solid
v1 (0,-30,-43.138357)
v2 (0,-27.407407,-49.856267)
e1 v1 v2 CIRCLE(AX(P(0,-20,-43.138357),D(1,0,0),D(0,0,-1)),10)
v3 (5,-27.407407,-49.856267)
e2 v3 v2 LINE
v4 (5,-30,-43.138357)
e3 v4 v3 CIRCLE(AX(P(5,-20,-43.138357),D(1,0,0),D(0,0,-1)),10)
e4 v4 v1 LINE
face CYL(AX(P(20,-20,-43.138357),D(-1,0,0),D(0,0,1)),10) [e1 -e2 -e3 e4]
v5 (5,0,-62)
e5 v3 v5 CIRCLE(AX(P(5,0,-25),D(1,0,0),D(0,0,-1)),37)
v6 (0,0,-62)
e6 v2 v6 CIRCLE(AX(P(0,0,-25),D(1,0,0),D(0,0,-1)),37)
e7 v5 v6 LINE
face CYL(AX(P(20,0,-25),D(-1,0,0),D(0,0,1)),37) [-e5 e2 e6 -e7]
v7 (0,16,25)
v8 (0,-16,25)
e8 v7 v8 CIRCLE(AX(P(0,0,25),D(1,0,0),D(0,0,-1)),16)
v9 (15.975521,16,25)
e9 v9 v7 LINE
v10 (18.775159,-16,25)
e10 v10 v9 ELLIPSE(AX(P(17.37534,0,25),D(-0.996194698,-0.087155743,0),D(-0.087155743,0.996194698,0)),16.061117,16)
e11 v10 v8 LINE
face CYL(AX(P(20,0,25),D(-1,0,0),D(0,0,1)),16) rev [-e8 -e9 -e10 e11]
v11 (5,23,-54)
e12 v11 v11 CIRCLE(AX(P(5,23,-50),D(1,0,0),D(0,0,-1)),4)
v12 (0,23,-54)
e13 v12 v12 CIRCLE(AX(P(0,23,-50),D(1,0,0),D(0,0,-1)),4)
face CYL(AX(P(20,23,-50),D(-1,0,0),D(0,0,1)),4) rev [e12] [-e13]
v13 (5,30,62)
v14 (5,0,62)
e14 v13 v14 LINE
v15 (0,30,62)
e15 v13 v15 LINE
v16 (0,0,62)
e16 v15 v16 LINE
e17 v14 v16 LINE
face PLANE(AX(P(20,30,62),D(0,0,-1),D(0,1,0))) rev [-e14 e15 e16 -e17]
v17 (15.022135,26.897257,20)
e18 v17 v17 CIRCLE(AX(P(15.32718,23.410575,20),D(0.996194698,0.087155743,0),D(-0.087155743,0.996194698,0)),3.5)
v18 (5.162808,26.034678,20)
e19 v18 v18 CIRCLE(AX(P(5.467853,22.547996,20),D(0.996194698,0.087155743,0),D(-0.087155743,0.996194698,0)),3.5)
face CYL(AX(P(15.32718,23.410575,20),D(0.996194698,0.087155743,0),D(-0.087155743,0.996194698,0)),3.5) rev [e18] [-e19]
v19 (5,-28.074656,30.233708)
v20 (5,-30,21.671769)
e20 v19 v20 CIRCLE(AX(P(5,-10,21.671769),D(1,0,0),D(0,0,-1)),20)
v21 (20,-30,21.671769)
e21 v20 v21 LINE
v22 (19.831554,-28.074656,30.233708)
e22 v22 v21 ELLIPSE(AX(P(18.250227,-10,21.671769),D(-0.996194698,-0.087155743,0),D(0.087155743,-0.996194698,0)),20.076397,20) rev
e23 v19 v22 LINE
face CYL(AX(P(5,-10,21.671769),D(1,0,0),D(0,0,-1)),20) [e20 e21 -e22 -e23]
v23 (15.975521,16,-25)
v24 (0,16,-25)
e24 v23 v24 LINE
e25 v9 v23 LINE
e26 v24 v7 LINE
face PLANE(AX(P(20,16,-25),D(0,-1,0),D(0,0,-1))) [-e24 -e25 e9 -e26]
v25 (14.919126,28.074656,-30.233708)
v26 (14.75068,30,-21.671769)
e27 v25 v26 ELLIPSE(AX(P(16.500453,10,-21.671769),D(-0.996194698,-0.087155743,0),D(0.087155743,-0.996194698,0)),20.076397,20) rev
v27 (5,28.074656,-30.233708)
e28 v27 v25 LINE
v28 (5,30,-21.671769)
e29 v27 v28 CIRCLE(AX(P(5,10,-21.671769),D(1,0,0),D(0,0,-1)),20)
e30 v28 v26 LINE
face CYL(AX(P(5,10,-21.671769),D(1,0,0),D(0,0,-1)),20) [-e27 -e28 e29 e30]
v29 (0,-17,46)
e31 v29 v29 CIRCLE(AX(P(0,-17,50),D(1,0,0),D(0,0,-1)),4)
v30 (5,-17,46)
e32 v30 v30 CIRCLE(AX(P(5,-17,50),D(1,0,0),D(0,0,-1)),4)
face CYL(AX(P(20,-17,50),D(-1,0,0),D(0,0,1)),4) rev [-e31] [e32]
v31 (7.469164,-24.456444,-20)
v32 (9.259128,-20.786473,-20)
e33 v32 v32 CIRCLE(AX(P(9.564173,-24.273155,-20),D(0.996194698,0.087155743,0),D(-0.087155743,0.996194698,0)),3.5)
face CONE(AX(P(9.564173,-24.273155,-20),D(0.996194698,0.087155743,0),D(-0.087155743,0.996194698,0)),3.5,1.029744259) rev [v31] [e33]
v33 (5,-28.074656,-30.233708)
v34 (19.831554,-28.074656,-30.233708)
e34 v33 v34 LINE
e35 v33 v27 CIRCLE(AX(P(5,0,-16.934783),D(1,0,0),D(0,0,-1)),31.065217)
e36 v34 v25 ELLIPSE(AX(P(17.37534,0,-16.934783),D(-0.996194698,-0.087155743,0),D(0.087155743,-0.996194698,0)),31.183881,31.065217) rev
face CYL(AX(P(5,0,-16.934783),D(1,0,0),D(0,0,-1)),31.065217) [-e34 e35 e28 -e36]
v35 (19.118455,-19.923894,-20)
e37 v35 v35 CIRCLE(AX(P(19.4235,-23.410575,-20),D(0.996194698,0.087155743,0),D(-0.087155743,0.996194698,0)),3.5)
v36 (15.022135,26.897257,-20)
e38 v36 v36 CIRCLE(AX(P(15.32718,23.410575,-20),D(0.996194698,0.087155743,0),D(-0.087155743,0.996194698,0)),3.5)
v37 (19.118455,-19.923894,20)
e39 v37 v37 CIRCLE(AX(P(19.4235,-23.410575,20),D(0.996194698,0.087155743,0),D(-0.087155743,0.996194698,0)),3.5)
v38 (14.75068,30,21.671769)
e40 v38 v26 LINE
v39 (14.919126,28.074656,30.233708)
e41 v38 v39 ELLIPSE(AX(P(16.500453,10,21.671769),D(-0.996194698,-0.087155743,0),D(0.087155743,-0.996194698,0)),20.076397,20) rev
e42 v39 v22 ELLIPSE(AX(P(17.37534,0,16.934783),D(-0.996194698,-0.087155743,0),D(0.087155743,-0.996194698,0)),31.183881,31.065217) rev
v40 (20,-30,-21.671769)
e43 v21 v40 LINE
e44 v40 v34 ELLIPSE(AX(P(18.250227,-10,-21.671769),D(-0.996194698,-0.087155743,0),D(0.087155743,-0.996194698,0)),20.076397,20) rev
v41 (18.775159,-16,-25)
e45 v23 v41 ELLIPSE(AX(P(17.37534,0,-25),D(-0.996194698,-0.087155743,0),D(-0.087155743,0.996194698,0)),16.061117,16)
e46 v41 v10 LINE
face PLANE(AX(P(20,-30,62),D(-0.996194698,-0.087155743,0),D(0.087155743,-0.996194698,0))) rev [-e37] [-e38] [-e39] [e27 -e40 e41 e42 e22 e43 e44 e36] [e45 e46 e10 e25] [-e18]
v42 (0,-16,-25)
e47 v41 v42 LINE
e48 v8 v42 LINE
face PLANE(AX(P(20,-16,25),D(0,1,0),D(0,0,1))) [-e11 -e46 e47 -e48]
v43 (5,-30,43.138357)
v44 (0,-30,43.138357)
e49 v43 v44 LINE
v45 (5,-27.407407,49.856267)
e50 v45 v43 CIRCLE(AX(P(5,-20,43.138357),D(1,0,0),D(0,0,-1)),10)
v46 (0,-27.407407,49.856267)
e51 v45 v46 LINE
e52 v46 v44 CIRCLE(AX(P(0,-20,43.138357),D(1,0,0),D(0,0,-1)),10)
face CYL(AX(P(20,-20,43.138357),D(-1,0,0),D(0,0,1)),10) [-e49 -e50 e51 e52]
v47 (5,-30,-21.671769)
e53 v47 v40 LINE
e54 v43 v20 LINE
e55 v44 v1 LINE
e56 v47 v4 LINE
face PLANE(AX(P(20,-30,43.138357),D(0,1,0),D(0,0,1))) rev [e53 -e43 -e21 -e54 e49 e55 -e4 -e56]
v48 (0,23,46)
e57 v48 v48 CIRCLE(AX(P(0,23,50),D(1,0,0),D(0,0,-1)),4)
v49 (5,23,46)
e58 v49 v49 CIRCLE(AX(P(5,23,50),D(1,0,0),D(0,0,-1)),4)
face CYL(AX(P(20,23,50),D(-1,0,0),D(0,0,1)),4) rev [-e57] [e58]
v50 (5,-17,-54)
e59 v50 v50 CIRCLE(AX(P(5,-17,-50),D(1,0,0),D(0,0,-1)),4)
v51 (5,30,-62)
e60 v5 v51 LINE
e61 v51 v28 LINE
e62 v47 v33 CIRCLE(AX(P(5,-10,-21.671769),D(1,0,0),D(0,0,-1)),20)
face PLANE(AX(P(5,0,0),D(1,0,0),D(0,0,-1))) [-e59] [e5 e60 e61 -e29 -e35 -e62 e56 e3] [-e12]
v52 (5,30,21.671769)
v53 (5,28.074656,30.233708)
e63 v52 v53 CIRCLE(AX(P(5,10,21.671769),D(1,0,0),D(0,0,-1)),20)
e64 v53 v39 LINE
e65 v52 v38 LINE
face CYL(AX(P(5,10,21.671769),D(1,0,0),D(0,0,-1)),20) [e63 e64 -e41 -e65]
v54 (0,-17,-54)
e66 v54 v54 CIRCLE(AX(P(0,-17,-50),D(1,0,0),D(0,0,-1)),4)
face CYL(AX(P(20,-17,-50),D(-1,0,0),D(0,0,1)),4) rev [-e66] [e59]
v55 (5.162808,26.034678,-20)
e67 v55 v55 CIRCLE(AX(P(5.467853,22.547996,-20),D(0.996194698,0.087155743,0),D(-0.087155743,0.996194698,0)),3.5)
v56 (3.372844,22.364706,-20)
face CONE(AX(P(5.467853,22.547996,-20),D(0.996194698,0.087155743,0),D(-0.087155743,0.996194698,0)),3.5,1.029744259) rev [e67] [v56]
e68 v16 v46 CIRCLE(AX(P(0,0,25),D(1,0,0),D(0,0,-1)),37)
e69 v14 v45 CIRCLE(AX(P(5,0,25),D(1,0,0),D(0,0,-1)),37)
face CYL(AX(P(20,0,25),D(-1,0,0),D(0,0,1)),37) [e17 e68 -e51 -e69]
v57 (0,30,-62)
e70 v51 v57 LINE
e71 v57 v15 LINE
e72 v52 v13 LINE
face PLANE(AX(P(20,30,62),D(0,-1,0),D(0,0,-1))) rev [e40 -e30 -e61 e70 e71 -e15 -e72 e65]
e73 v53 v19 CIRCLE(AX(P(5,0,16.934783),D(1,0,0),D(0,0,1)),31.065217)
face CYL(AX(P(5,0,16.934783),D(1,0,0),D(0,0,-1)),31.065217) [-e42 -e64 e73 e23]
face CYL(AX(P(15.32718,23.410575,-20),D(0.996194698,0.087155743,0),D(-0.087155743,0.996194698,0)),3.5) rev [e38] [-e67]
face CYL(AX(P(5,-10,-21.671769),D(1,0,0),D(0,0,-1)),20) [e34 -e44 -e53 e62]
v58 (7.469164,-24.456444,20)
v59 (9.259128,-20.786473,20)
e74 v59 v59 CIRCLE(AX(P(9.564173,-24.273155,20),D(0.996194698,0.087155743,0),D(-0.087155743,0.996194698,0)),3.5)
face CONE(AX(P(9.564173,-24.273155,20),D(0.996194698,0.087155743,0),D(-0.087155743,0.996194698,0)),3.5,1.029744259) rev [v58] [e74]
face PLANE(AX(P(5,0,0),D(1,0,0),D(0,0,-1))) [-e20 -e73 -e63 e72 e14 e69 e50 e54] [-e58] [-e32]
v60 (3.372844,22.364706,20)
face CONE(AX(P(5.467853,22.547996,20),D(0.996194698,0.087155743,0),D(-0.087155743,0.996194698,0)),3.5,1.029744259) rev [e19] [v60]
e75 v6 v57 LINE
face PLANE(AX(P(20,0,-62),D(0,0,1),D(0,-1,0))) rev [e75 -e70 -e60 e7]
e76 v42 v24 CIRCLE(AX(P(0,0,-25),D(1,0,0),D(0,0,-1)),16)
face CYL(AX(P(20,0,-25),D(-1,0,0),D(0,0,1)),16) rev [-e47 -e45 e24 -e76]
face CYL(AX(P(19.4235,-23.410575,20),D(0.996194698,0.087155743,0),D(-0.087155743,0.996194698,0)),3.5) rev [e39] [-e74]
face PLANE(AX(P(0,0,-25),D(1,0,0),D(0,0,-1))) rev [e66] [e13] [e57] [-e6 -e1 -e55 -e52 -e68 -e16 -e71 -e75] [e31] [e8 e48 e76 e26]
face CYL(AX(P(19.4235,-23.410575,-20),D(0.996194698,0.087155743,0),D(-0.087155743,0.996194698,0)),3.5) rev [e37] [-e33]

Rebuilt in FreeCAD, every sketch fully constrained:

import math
import FreeCAD as App
import Part
import Sketcher

V = App.Vector
Q = App.Units.Quantity


def add_polygon(sketch, points):
    """Adds a closed chain of lines whose ends are joined by coincident constraints."""
    first, n = sketch.GeometryCount, len(points)
    for a, b in zip(points, points[1:] + points[:1]):
        sketch.addGeometry(Part.LineSegment(App.Vector(*a, 0), App.Vector(*b, 0)), False)
    for i in range(n):
        sketch.addConstraint(Sketcher.Constraint("Coincident", first + i, 2, first + (i + 1) % n, 1))

doc = App.newDocument("Part")
body = doc.addObject("PartDesign::Body", "Body")

sketch1 = body.newObject("Sketcher::SketchObject", "Sketch")
sketch1.AttachmentSupport = (doc.getObject("YZ_Plane"), [""])
sketch1.MapMode = "FlatFace"
sketch1.addGeometry([
    Part.LineSegment(V(-30, 43.1, 0), V(-30, -43.1, 0)),
    Part.ArcOfCircle(Part.Circle(V(-20, -43.1, 0), V(0, 0, 1), 10), math.radians(-180), math.radians(-138)),
    Part.ArcOfCircle(Part.Circle(V(0, -25, 0), V(0, 0, 1), 37), math.radians(-138), math.radians(-90)),
    Part.LineSegment(V(0, -62, 0), V(30, -62, 0)),
    Part.LineSegment(V(30, -62, 0), V(30, 62, 0)),
    Part.LineSegment(V(30, 62, 0), V(0, 62, 0)),
    Part.ArcOfCircle(Part.Circle(V(0, 25, 0), V(0, 0, 1), 37), math.radians(90), math.radians(138)),
    Part.ArcOfCircle(Part.Circle(V(-20, 43.1, 0), V(0, 0, 1), 10), math.radians(138), math.radians(180)),
    Part.Circle(V(-17, 50, 0), V(0, 0, 1), 4),
    Part.LineSegment(V(-16, -25, 0), V(-16, 25, 0)),
    Part.ArcOfCircle(Part.Circle(V(0, 25, 0), V(0, 0, 1), 16), math.radians(0), math.radians(180)),
    Part.LineSegment(V(16, 25, 0), V(16, -25, 0)),
    Part.ArcOfCircle(Part.Circle(V(0, -25, 0), V(0, 0, 1), 16), math.radians(180), math.radians(360)),
    Part.Circle(V(-17, -50, 0), V(0, 0, 1), 4),
    Part.Circle(V(23, 50, 0), V(0, 0, 1), 4),
    Part.Circle(V(23, -50, 0), V(0, 0, 1), 4),
], False)
sketch1.addConstraint([
    Sketcher.Constraint("Tangent", 0, 2, 1, 1),
    Sketcher.Constraint("Tangent", 1, 2, 2, 1),
    Sketcher.Constraint("Tangent", 2, 2, 3, 1),
    Sketcher.Constraint("Coincident", 3, 2, 4, 1),
    Sketcher.Constraint("Coincident", 4, 2, 5, 1),
    Sketcher.Constraint("Tangent", 5, 2, 6, 1),
    Sketcher.Constraint("Tangent", 6, 2, 7, 1),
    Sketcher.Constraint("Tangent", 7, 2, 0, 1),
    Sketcher.Constraint("Tangent", 9, 2, 10, 2),
    Sketcher.Constraint("Tangent", 10, 1, 11, 1),
    Sketcher.Constraint("Tangent", 11, 2, 12, 2),
    Sketcher.Constraint("Tangent", 12, 1, 9, 1),
    Sketcher.Constraint("Vertical", 0),
    Sketcher.Constraint("Horizontal", 3),
    Sketcher.Constraint("Vertical", 4),
    Sketcher.Constraint("Horizontal", 5),
    Sketcher.Constraint("Vertical", 9),
    Sketcher.Constraint("Vertical", 11),
    Sketcher.Constraint("Coincident", 10, 3, 6, 3),
    Sketcher.Constraint("Coincident", 12, 3, 2, 3),
    Sketcher.Constraint("Equal", 2, 6),
    Sketcher.Constraint("Equal", 1, 7),
    Sketcher.Constraint("Equal", 8, 13),
    Sketcher.Constraint("Equal", 13, 14),
    Sketcher.Constraint("Equal", 14, 15),
    Sketcher.Constraint("Symmetric", 2, 3, 6, 3, -1, 1),
    Sketcher.Constraint("Symmetric", 8, 3, 13, 3, -1),
    Sketcher.Constraint("Symmetric", 14, 3, 15, 3, -1),
    Sketcher.Constraint("Horizontal", 8, 3, 14, 3),
    Sketcher.Constraint("Diameter", 8, 8.0),
    Sketcher.Constraint("Radius", 1, 10.0),
    Sketcher.Constraint("Radius", 2, 37.0),
    Sketcher.Constraint("Radius", 10, 16.0),
    Sketcher.Constraint("DistanceX", 3, 1, 3, 2, 30.0),
    Sketcher.Constraint("DistanceY", 4, 1, 4, 2, 124.0),
    Sketcher.Constraint("DistanceX", 1, 3, -1, 1, 20.0),
    Sketcher.Constraint("DistanceX", 8, 3, -1, 1, 17.0),
    Sketcher.Constraint("DistanceY", -1, 1, 8, 3, 50.0),
    Sketcher.Constraint("DistanceX", -1, 1, 14, 3, 23.0),
])
pad1 = body.newObject("PartDesign::Pad", "Pad")
pad1.Profile = sketch1
pad1.Length = 20

sketch2 = body.newObject("Sketcher::SketchObject", "Sketch001")
sketch2.AttachmentSupport = (doc.getObject("YZ_Plane"), [""])
sketch2.MapMode = "FlatFace"
sketch2.AttachmentOffset = App.Placement(V(0, 0, 20), App.Rotation())
add_polygon(sketch2, [(45, 77), (-45, 77), (-45, -77), (45, -77)])
sketch2.addGeometry(Part.LineSegment(V(30, 22, 0), V(30, -22, 0)), False)
sketch2.addGeometry(Part.ArcOfCircle(Part.Circle(V(10, -22, 0), V(0, 0, 1), 20), math.radians(-25), math.radians(0)), False)
sketch2.addGeometry(Part.ArcOfCircle(Part.Circle(V(0, -17, 0), V(0, 0, 1), 31), math.radians(-155), math.radians(-25)), False)
sketch2.addGeometry(Part.ArcOfCircle(Part.Circle(V(-10, -22, 0), V(0, 0, 1), 20), math.radians(-180), math.radians(-155)), False)
sketch2.addGeometry(Part.LineSegment(V(-30, -22, 0), V(-30, 22, 0)), False)
sketch2.addGeometry(Part.ArcOfCircle(Part.Circle(V(-10, 22, 0), V(0, 0, 1), 20), math.radians(155), math.radians(180)), False)
sketch2.addGeometry(Part.ArcOfCircle(Part.Circle(V(0, 17, 0), V(0, 0, 1), 31), math.radians(25), math.radians(155)), False)
sketch2.addGeometry(Part.ArcOfCircle(Part.Circle(V(10, 22, 0), V(0, 0, 1), 20), math.radians(0), math.radians(25)), False)
sketch2.addGeometry(Part.LineSegment(V(-16, 25, 0), V(-16, -25, 0)), False)
sketch2.addGeometry(Part.ArcOfCircle(Part.Circle(V(0, -25, 0), V(0, 0, 1), 16), math.radians(180), math.radians(360)), False)
sketch2.addGeometry(Part.LineSegment(V(16, -25, 0), V(16, 25, 0)), False)
sketch2.addGeometry(Part.ArcOfCircle(Part.Circle(V(0, 25, 0), V(0, 0, 1), 16), math.radians(0), math.radians(180)), False)
sketch2.addConstraint([
    Sketcher.Constraint("Tangent", 4, 2, 5, 2),
    Sketcher.Constraint("Tangent", 5, 1, 6, 2),
    Sketcher.Constraint("Tangent", 6, 1, 7, 2),
    Sketcher.Constraint("Tangent", 7, 1, 8, 1),
    Sketcher.Constraint("Tangent", 8, 2, 9, 2),
    Sketcher.Constraint("Tangent", 9, 1, 10, 2),
    Sketcher.Constraint("Tangent", 10, 1, 11, 2),
    Sketcher.Constraint("Tangent", 11, 1, 4, 1),
    Sketcher.Constraint("Tangent", 12, 2, 13, 1),
    Sketcher.Constraint("Tangent", 13, 2, 14, 1),
    Sketcher.Constraint("Tangent", 14, 2, 15, 1),
    Sketcher.Constraint("Tangent", 15, 2, 12, 1),
    Sketcher.Constraint("Horizontal", 0),
    Sketcher.Constraint("Vertical", 1),
    Sketcher.Constraint("Horizontal", 2),
    Sketcher.Constraint("Vertical", 3),
    Sketcher.Constraint("Vertical", 4),
    Sketcher.Constraint("Vertical", 8),
    Sketcher.Constraint("Vertical", 12),
    Sketcher.Constraint("Vertical", 14),
    Sketcher.Constraint("Equal", 5, 7),
    Sketcher.Constraint("Equal", 7, 9),
    Sketcher.Constraint("Equal", 6, 10),
    Sketcher.Constraint("Equal", 9, 11),
    Sketcher.Constraint("Symmetric", 5, 3, 9, 3, -1, 1),
    Sketcher.Constraint("Symmetric", 13, 3, 15, 3, -1, 1),
    Sketcher.Constraint("Symmetric", 0, 2, 2, 2, -1, 1),
    Sketcher.Constraint("Symmetric", 6, 3, 10, 3, -1),
    Sketcher.Constraint("Radius", 5, 20.0),
    Sketcher.Constraint("Radius", 13, 16.0),
    Sketcher.Constraint("DistanceY", 12, 2, 12, 1, 50.0),
    Sketcher.Constraint("DistanceX", -1, 1, 5, 3, 10.0),
    Sketcher.Constraint("DistanceX", 0, 2, 0, 1, 89.84),
    Sketcher.Constraint("DistanceY", 1, 2, 1, 1, 153.84),
    Sketcher.Constraint("Radius", 6, 31.065217),
    Sketcher.Constraint("DistanceY", 4, 2, 4, 1, 43.343537),
])
pocket1 = body.newObject("PartDesign::Pocket", "Pocket")
pocket1.Profile = sketch2
pocket1.Length = 15

sketch3 = body.newObject("Sketcher::SketchObject", "Sketch002")
sketch3.AttachmentSupport = (doc.getObject("XY_Plane"), [""])
sketch3.MapMode = "FlatFace"
sketch3.AttachmentOffset = App.Placement(V(0, 0, -62), App.Rotation())
add_polygon(sketch3, [(20, 30), (20, -30), (15, 30)])
sketch3.addConstraint([
    Sketcher.Constraint("Vertical", 0),
    Sketcher.Constraint("Horizontal", 2),
    Sketcher.Constraint("DistanceY", 0, 2, 0, 1, 60.0),
    Sketcher.Constraint("Angle", 1, Q("95 deg")),
    Sketcher.Constraint("DistanceX", -1, 1, 0, 2, 20.0),
    Sketcher.Constraint("DistanceY", 0, 2, -1, 1, 30.0),
])
pocket2 = body.newObject("PartDesign::Pocket", "Pocket001")
pocket2.Profile = sketch3
pocket2.Type = "ThroughAll"
pocket2.Midplane = True

sketch4 = body.newObject("Sketcher::SketchObject", "Sketch003")
sketch4.Placement = App.Placement(V(17.243355, 1.508598, 0), App.Rotation(V(-0.087155743, 0.996194698, 0), V(0, 0, 1), V(0.996194698, 0.087155743, 0), "ZXY"))
sketch4.addGeometry([
    Part.Circle(V(22, 20, 0), V(0, 0, 1), 3.5),
    Part.Circle(V(-25, -20, 0), V(0, 0, 1), 3.5),
    Part.Circle(V(-25, 20, 0), V(0, 0, 1), 3.5),
], False)
sketch4.addConstraint([
    Sketcher.Constraint("Equal", 0, 1),
    Sketcher.Constraint("Equal", 1, 2),
    Sketcher.Constraint("Symmetric", 1, 3, 2, 3, -1),
    Sketcher.Constraint("Horizontal", 0, 3, 2, 3),
    Sketcher.Constraint("Diameter", 0, 7.0),
    Sketcher.Constraint("DistanceY", -1, 1, 0, 3, 20.0),
    Sketcher.Constraint("DistanceX", 1, 3, 0, 3, 47.0),
    Sketcher.Constraint("DistanceX", -1, 1, 0, 3, 21.985639),
])
doc.recompute()
hole = body.newObject("PartDesign::Hole", "Hole")
hole.Profile = sketch4
hole.ThreadType = "None"
hole.Diameter = 7
hole.DepthType = "Dimension"
hole.Depth = 9.896988
hole.DrillPoint = "Angled"
hole.DrillPointAngle = 118

sketch5 = body.newObject("Sketcher::SketchObject", "Sketch004")
sketch5.Placement = App.Placement(V(17.24336, 1.508602, 0), App.Rotation(V(-0.087155972, 0.996194678, 0), V(0, 0, 1), V(0.996194678, 0.087155972, 0), "ZXY"))
sketch5.addGeometry(Part.Circle(V(22, -20, 0), V(0, 0, 1), 3.5), False)
sketch5.addConstraint([
    Sketcher.Constraint("Diameter", 0, 7.0),
    Sketcher.Constraint("DistanceY", 0, 3, -1, 1, 20.0),
    Sketcher.Constraint("DistanceX", -1, 1, 0, 3, 21.985635),
])
doc.recompute()
hole2 = body.newObject("PartDesign::Hole", "Hole001")
hole2.Profile = sketch5
hole2.ThreadType = "None"
hole2.Diameter = 7
hole2.DepthType = "Dimension"
hole2.Depth = 9.896988
hole2.DrillPoint = "Angled"
hole2.DrillPointAngle = 118

doc.recompute()
